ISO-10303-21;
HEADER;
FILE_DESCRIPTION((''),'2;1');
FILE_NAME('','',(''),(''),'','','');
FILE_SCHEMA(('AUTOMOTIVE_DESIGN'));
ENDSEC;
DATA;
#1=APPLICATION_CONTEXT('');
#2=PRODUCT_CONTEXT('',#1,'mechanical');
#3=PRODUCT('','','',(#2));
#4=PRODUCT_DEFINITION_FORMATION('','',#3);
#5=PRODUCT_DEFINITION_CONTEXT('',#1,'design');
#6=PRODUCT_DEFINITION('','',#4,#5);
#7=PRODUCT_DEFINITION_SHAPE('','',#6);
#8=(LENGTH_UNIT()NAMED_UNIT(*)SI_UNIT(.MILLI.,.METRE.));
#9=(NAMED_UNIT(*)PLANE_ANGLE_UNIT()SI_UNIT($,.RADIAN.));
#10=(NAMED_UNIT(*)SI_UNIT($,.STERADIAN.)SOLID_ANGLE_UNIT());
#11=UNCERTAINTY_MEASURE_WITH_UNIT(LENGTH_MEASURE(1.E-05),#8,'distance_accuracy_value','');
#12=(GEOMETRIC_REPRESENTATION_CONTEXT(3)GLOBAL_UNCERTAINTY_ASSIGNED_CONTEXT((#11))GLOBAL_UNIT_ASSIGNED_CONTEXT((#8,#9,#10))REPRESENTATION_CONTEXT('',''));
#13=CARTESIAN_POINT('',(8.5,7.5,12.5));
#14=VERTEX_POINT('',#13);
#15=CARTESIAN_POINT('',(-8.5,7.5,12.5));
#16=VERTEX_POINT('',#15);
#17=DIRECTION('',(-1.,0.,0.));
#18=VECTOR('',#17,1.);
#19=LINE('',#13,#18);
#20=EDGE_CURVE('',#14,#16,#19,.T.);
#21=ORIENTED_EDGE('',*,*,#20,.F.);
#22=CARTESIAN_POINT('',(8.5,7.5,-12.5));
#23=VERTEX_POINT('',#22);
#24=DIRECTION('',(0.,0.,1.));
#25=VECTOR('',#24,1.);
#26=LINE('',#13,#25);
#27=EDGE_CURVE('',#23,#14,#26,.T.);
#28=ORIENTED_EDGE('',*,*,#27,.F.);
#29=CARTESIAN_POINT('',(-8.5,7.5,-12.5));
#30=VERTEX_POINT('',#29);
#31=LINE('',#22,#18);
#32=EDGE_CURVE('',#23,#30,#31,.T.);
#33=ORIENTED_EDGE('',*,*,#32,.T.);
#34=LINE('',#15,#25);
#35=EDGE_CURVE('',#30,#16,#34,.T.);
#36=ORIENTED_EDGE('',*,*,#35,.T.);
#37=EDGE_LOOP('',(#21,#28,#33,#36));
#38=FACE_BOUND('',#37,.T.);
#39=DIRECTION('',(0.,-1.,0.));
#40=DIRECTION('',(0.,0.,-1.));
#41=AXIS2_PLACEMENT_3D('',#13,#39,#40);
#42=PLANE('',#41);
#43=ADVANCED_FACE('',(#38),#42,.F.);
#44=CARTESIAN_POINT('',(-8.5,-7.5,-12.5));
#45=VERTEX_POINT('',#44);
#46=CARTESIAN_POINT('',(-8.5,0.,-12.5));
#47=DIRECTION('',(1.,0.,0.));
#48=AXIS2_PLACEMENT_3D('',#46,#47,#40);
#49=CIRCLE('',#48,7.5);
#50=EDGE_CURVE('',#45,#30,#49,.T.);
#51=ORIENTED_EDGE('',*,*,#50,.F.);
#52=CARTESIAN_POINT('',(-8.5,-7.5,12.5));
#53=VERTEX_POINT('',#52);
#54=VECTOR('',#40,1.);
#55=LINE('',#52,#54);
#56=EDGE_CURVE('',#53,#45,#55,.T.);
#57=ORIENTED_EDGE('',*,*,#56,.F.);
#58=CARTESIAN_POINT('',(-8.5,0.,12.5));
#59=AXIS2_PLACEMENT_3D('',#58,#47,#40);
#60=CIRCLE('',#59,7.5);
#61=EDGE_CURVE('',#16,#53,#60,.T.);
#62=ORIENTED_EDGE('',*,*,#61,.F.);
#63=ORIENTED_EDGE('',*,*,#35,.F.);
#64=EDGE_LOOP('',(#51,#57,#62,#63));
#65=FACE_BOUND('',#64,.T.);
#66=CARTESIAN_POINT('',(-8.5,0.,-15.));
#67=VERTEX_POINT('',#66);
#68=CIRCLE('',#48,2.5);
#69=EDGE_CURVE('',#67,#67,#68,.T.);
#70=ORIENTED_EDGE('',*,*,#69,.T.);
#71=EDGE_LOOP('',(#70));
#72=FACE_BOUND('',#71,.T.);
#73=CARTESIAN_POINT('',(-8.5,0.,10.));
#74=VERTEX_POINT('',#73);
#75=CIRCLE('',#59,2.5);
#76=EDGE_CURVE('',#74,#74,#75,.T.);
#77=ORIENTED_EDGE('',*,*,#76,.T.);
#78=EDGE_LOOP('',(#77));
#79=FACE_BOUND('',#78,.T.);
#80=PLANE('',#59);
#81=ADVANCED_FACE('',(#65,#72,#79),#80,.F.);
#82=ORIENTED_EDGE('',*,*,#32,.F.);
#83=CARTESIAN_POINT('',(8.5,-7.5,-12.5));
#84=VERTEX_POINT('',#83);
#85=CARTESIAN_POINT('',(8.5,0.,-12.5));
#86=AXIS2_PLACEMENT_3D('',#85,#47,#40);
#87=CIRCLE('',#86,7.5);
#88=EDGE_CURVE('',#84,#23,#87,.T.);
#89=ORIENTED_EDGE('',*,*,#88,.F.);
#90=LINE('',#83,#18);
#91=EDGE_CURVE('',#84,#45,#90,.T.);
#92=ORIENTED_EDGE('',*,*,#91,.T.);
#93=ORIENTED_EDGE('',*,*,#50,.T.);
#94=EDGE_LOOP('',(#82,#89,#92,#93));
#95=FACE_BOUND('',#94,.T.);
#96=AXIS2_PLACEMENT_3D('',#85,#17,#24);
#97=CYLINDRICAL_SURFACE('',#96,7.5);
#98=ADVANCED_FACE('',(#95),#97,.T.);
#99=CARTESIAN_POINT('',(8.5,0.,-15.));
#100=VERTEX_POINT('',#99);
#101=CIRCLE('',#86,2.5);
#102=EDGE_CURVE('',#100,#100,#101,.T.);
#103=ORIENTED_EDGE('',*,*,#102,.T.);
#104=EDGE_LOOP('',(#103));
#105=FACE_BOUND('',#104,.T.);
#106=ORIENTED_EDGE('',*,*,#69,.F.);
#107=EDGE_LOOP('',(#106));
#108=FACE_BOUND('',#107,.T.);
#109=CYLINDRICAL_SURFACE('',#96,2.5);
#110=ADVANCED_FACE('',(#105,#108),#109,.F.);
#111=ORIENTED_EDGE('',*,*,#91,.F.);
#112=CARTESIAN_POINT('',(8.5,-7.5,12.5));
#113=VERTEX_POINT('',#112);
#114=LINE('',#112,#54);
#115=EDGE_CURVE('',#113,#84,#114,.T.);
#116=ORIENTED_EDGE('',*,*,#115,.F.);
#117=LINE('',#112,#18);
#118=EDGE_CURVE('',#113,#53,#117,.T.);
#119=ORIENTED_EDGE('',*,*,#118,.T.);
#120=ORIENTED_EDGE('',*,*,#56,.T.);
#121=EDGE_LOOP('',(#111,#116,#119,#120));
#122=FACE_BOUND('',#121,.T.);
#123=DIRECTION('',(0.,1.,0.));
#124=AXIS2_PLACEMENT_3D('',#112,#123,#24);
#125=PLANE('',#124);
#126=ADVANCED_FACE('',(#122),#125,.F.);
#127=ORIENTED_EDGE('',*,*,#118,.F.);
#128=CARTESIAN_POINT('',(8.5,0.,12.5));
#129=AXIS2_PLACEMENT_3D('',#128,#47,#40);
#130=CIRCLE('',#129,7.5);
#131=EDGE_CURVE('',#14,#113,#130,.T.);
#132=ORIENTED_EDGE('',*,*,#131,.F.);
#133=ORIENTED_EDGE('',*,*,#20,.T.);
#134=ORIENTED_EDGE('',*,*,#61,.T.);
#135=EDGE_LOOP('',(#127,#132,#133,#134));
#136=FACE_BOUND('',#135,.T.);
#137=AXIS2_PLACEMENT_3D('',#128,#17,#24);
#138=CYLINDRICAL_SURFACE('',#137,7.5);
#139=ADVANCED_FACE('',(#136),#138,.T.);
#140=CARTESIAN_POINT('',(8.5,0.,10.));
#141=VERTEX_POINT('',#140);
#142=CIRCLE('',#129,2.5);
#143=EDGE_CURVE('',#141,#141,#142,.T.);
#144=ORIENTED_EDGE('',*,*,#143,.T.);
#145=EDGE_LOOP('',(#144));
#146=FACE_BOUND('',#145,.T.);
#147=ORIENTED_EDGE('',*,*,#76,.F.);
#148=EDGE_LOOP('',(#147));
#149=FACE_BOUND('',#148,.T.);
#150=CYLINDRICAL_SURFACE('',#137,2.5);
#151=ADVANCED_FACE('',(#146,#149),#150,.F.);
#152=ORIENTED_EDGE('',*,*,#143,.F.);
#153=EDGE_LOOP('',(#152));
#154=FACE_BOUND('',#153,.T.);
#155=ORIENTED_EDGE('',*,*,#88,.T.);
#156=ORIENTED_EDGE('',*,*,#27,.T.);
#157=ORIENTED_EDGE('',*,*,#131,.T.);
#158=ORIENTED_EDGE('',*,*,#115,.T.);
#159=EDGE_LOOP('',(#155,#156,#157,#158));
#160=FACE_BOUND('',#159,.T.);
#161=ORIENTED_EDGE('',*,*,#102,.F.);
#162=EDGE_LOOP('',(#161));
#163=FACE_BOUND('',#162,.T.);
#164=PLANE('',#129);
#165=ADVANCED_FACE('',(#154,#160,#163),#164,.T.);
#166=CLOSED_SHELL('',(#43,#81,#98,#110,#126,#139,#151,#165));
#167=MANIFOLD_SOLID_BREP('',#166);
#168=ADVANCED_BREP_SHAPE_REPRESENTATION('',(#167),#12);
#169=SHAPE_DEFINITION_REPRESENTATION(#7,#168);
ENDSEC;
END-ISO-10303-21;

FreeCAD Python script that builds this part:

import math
import FreeCAD as App
import Part
import Sketcher

V = App.Vector
Q = App.Units.Quantity

doc = App.newDocument("Part")
body = doc.addObject("PartDesign::Body", "Body")

# Sketch on YZ plane
sketch1 = doc.addObject("Sketcher::SketchObject", "Sketch")
body.addObject(sketch1)
sketch1.AttachmentSupport = (doc.YZ_Plane, [""])
sketch1.MapMode = "FlatFace"
sketch1.addGeometry([
    Part.LineSegment(V(7.5, -12.5, 0), V(7.5, 12.5, 0)),  # 0
    Part.ArcOfCircle(Part.Circle(V(0, 12.5, 0), V(0, 0, 1), 7.5), math.radians(0), math.radians(180)),  # 1
    Part.LineSegment(V(-7.5, 12.5, 0), V(-7.5, -12.5, 0)),  # 2
    Part.ArcOfCircle(Part.Circle(V(0, -12.5, 0), V(0, 0, 1), 7.5), math.radians(180), math.radians(360)),  # 3
    Part.Circle(V(0, -12.5, 0), V(0, 0, 1), 2.5),  # 4
    Part.Circle(V(0, 12.5, 0), V(0, 0, 1), 2.5),  # 5
], False)
sketch1.addConstraint([
    Sketcher.Constraint("Tangent", 0, 2, 1, 1),
    Sketcher.Constraint("Tangent", 1, 2, 2, 1),
    Sketcher.Constraint("Tangent", 2, 2, 3, 1),
    Sketcher.Constraint("Tangent", 3, 2, 0, 1),
    Sketcher.Constraint("Vertical", 0),
    Sketcher.Constraint("Vertical", 2),
    Sketcher.Constraint("Coincident", 4, 3, 3, 3),
    Sketcher.Constraint("Coincident", 5, 3, 1, 3),
    Sketcher.Constraint("Equal", 4, 5),
    Sketcher.Constraint("Symmetric", 1, 3, 3, 3, -1, 1),
    Sketcher.Constraint("Diameter", 4, Q("5 mm")),
    Sketcher.Constraint("Radius", 1, Q("7.5 mm")),
    Sketcher.Constraint("DistanceY", 0, 1, 0, 2, Q("25 mm")),
])
pad1 = doc.addObject("PartDesign::Pad", "Pad")
body.addObject(pad1)
pad1.Profile = sketch1
pad1.Length = 17
pad1.Midplane = True

doc.recompute()
